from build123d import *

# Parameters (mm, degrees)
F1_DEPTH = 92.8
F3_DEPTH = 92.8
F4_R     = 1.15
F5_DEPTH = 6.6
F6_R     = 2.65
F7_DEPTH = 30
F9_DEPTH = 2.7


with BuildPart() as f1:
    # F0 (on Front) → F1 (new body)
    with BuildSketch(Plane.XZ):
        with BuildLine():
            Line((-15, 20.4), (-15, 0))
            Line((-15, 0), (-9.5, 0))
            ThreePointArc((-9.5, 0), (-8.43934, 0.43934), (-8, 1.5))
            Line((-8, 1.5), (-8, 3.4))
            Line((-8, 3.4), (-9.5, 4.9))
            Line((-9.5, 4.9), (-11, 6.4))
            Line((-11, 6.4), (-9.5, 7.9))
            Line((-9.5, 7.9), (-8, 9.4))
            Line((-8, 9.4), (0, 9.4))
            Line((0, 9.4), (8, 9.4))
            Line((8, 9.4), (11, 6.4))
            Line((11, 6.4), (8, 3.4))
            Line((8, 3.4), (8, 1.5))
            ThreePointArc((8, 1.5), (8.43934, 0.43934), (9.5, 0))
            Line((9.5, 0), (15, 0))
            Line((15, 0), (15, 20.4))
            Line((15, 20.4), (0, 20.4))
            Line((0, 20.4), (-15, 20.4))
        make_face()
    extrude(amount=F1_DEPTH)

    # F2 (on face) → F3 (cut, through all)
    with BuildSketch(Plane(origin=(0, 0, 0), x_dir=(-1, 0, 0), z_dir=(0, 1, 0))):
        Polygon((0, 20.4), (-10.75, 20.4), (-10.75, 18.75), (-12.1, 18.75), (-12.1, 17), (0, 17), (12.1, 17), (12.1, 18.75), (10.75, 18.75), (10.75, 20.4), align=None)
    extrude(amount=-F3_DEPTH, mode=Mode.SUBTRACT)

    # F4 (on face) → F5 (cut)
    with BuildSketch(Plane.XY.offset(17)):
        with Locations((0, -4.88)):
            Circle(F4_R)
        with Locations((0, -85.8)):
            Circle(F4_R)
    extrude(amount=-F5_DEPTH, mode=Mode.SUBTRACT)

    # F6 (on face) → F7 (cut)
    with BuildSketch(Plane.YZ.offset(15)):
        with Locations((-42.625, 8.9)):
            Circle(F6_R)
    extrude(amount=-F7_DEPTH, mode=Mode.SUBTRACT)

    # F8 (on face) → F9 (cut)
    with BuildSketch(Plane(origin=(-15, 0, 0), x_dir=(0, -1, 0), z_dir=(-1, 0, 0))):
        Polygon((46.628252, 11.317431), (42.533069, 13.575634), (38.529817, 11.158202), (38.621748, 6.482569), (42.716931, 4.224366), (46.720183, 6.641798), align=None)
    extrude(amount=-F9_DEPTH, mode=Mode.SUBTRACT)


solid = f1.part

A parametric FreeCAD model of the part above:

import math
import FreeCAD as App
import Part
import Sketcher

V = App.Vector

doc = App.newDocument("Part")
params = doc.addObject("Spreadsheet::Sheet", "Params")
for row, (alias, value) in enumerate([
    ("sketch1_radius", "1.500001 mm"),
    ("sketch1_width", "16 mm"),
    ("sketch1_width2", "30 mm"),
    ("sketch1_height", "20.4 mm"),
    ("sketch1_height2", "1.9 mm"),
    ("pad1_length", "92.8 mm"),
    ("sketch2_width", "24.2 mm"),
    ("sketch2_width2", "21.5 mm"),
    ("sketch2_height", "1.65 mm"),
    ("sketch2_height2", "1.75 mm"),
    ("sketch3_diameter", "2.3 mm"),
    ("pocket2_length", "6.6 mm"),
    ("sketch4_diameter", "5.3 mm"),
    ("pocket3_length", "30 mm"),
    ("pocket4_length", "2.7 mm"),
], start=1):
    params.set(f"A{row}", alias)
    params.set(f"B{row}", "=" + value)
    params.setAlias(f"B{row}", alias)

body = doc.addObject("PartDesign::Body", "Body")

# Sketch on XZ plane
sketch1 = doc.addObject("Sketcher::SketchObject", "Sketch")
body.addObject(sketch1)
sketch1.AttachmentSupport = (doc.XZ_Plane, [""])
sketch1.MapMode = "FlatFace"
sketch1.addGeometry([
    Part.LineSegment(V(-15, 20.4, 0), V(-15, 0, 0)),  # 0
    Part.LineSegment(V(-15, 0, 0), V(-9.5, 0, 0)),  # 1
    Part.ArcOfCircle(Part.Circle(V(-9.5, 1.5, 0), V(0, 0, 1), 1.5), math.radians(-90), math.radians(0)),  # 2
    Part.LineSegment(V(-8, 1.5, 0), V(-8, 3.4, 0)),  # 3
    Part.LineSegment(V(-8, 3.4, 0), V(-11, 6.4, 0)),  # 4
    Part.LineSegment(V(-11, 6.4, 0), V(-8, 9.4, 0)),  # 5
    Part.LineSegment(V(-8, 9.4, 0), V(8, 9.4, 0)),  # 6
    Part.LineSegment(V(8, 9.4, 0), V(11, 6.4, 0)),  # 7
    Part.LineSegment(V(11, 6.4, 0), V(8, 3.4, 0)),  # 8
    Part.LineSegment(V(8, 3.4, 0), V(8, 1.5, 0)),  # 9
    Part.ArcOfCircle(Part.Circle(V(9.5, 1.5, 0), V(0, 0, 1), 1.5), math.radians(-180), math.radians(-90)),  # 10
    Part.LineSegment(V(9.5, 0, 0), V(15, 0, 0)),  # 11
    Part.LineSegment(V(15, 0, 0), V(15, 20.4, 0)),  # 12
    Part.LineSegment(V(15, 20.4, 0), V(-15, 20.4, 0)),  # 13
], False)
sketch1.addConstraint([
    Sketcher.Constraint("Coincident", 0, 2, 1, 1),
    Sketcher.Constraint("Tangent", 1, 2, 2, 1),
    Sketcher.Constraint("Tangent", 2, 2, 3, 1),
    Sketcher.Constraint("Coincident", 3, 2, 4, 1),
    Sketcher.Constraint("Coincident", 4, 2, 5, 1),
    Sketcher.Constraint("Coincident", 5, 2, 6, 1),
    Sketcher.Constraint("Coincident", 6, 2, 7, 1),
    Sketcher.Constraint("Coincident", 7, 2, 8, 1),
    Sketcher.Constraint("Coincident", 8, 2, 9, 1),
    Sketcher.Constraint("Tangent", 9, 2, 10, 1),
    Sketcher.Constraint("Tangent", 10, 2, 11, 1),
    Sketcher.Constraint("Coincident", 11, 2, 12, 1),
    Sketcher.Constraint("Coincident", 12, 2, 13, 1),
    Sketcher.Constraint("Coincident", 13, 2, 0, 1),
    Sketcher.Constraint("Vertical", 0),
    Sketcher.Constraint("Horizontal", 1),
    Sketcher.Constraint("Vertical", 3),
    Sketcher.Constraint("Horizontal", 6),
    Sketcher.Constraint("Vertical", 9),
    Sketcher.Constraint("Horizontal", 11),
    Sketcher.Constraint("Vertical", 12),
    Sketcher.Constraint("Horizontal", 13),
    Sketcher.Constraint("Equal", 2, 10),
    Sketcher.Constraint("Symmetric", 1, 2, 10, 2, -1, 1),
    Sketcher.Constraint("Symmetric", 4, 2, 7, 2, -2),
    Sketcher.Constraint("Symmetric", 0, 2, 11, 2, -2),
    Sketcher.Constraint("Perpendicular", 4, 5),
    Sketcher.Constraint("Perpendicular", 5, 7),
    Sketcher.Constraint("Perpendicular", 7, 8),
    Sketcher.Constraint("Horizontal", 3, 2, 8, 2),
    Sketcher.Constraint("Vertical", 3, 2, 5, 2),
    Sketcher.Constraint("Radius", 2, 1.500001),
    Sketcher.Constraint("DistanceX", 6, 1, 6, 2, 16.0),
    Sketcher.Constraint("DistanceX", 13, 2, 13, 1, 30.0),
    Sketcher.Constraint("DistanceY", 0, 2, 0, 1, 20.4),
    Sketcher.Constraint("DistanceY", 3, 1, 3, 2, 1.9),
    Sketcher.Constraint("DistanceX", 4, 2, -1, 1, 11.0),
])
sketch1.setExpression("Constraints[31]", "Params.sketch1_radius")
sketch1.setExpression("Constraints[32]", "Params.sketch1_width")
sketch1.setExpression("Constraints[33]", "Params.sketch1_width2")
sketch1.setExpression("Constraints[34]", "Params.sketch1_height")
sketch1.setExpression("Constraints[35]", "Params.sketch1_height2")
pad1 = doc.addObject("PartDesign::Pad", "Pad")
body.addObject(pad1)
pad1.Profile = sketch1
pad1.setExpression("Length", "Params.pad1_length")

# Sketch on XZ plane
sketch2 = doc.addObject("Sketcher::SketchObject", "Sketch001")
body.addObject(sketch2)
sketch2.AttachmentSupport = (doc.XZ_Plane, [""])
sketch2.MapMode = "FlatFace"
sketch2.addGeometry([
    Part.LineSegment(V(10.8, 20.4, 0), V(10.8, 18.8, 0)),  # 0
    Part.LineSegment(V(10.8, 18.8, 0), V(12.1, 18.8, 0)),  # 1
    Part.LineSegment(V(12.1, 18.8, 0), V(12.1, 17, 0)),  # 2
    Part.LineSegment(V(12.1, 17, 0), V(-12.1, 17, 0)),  # 3
    Part.LineSegment(V(-12.1, 17, 0), V(-12.1, 18.8, 0)),  # 4
    Part.LineSegment(V(-12.1, 18.8, 0), V(-10.8, 18.8, 0)),  # 5
    Part.LineSegment(V(-10.8, 18.8, 0), V(-10.8, 20.4, 0)),  # 6
    Part.LineSegment(V(-10.8, 20.4, 0), V(10.8, 20.4, 0)),  # 7
], False)
sketch2.addConstraint([
    Sketcher.Constraint("Coincident", 0, 2, 1, 1),
    Sketcher.Constraint("Coincident", 1, 2, 2, 1),
    Sketcher.Constraint("Coincident", 2, 2, 3, 1),
    Sketcher.Constraint("Coincident", 3, 2, 4, 1),
    Sketcher.Constraint("Coincident", 4, 2, 5, 1),
    Sketcher.Constraint("Coincident", 5, 2, 6, 1),
    Sketcher.Constraint("Coincident", 6, 2, 7, 1),
    Sketcher.Constraint("Coincident", 7, 2, 0, 1),
    Sketcher.Constraint("Vertical", 0),
    Sketcher.Constraint("Horizontal", 1),
    Sketcher.Constraint("Vertical", 2),
    Sketcher.Constraint("Horizontal", 3),
    Sketcher.Constraint("Vertical", 4),
    Sketcher.Constraint("Horizontal", 5),
    Sketcher.Constraint("Vertical", 6),
    Sketcher.Constraint("Horizontal", 7),
    Sketcher.Constraint("Symmetric", 1, 2, 4, 2, -2),
    Sketcher.Constraint("Equal", 1, 5),
    Sketcher.Constraint("DistanceX", 3, 2, 3, 1, 24.2),
    Sketcher.Constraint("DistanceX", 7, 1, 7, 2, 21.5),
    Sketcher.Constraint("DistanceY", -1, 1, 2, 2, 17.0),
    Sketcher.Constraint("DistanceY", 0, 2, 0, 1, 1.65),
    Sketcher.Constraint("DistanceY", 2, 2, 2, 1, 1.75),
])
sketch2.setExpression("Constraints[18]", "Params.sketch2_width")
sketch2.setExpression("Constraints[19]", "Params.sketch2_width2")
sketch2.setExpression("Constraints[21]", "Params.sketch2_height")
sketch2.setExpression("Constraints[22]", "Params.sketch2_height2")
pocket1 = doc.addObject("PartDesign::Pocket", "Pocket")
body.addObject(pocket1)
pocket1.Profile = sketch2
pocket1.Type = "ThroughAll"
pocket1.Reversed = True

# Sketch on XY plane
sketch3 = doc.addObject("Sketcher::SketchObject", "Sketch002")
body.addObject(sketch3)
sketch3.AttachmentSupport = (doc.XY_Plane, [""])
sketch3.MapMode = "FlatFace"
sketch3.AttachmentOffset = App.Placement(V(0, 0, 17), App.Rotation())
sketch3.addGeometry([
    Part.Circle(V(0, -4.9, 0), V(0, 0, 1), 1.1),
    Part.Circle(V(0, -85.8, 0), V(0, 0, 1), 1.1),
], False)
sketch3.addConstraint([
    Sketcher.Constraint("Equal", 0, 1),
    Sketcher.Constraint("PointOnObject", 0, 3, -2),
    Sketcher.Constraint("PointOnObject", 1, 3, -2),
    Sketcher.Constraint("Diameter", 0, 2.3),
    Sketcher.Constraint("DistanceY", 1, 3, -1, 1, 85.8),
    Sketcher.Constraint("DistanceY", 0, 3, -1, 1, 4.88),
])
sketch3.setExpression("Constraints[3]", "Params.sketch3_diameter")
pocket2 = doc.addObject("PartDesign::Pocket", "Pocket001")
body.addObject(pocket2)
pocket2.Profile = sketch3
pocket2.setExpression("Length", "Params.pocket2_length")

# Sketch on YZ plane
sketch4 = doc.addObject("Sketcher::SketchObject", "Sketch003")
body.addObject(sketch4)
sketch4.AttachmentSupport = (doc.YZ_Plane, [""])
sketch4.MapMode = "FlatFace"
sketch4.AttachmentOffset = App.Placement(V(0, 0, 15), App.Rotation())
sketch4.addGeometry(Part.Circle(V(-42.6, 8.9, 0), V(0, 0, 1), 2.6), False)
sketch4.addConstraint([
    Sketcher.Constraint("Diameter", 0, 5.3),
    Sketcher.Constraint("DistanceY", -1, 1, 0, 3, 8.9),
    Sketcher.Constraint("DistanceX", 0, 3, -1, 1, 42.625),
])
sketch4.setExpression("Constraints[0]", "Params.sketch4_diameter")
pocket3 = doc.addObject("PartDesign::Pocket", "Pocket002")
body.addObject(pocket3)
pocket3.Profile = sketch4
pocket3.setExpression("Length", "Params.pocket3_length")

# Sketch on YZ plane
sketch5 = doc.addObject("Sketcher::SketchObject", "Sketch004")
body.addObject(sketch5)
sketch5.AttachmentSupport = (doc.YZ_Plane, [""])
sketch5.MapMode = "FlatFace"
sketch5.AttachmentOffset = App.Placement(V(0, 0, -15), App.Rotation())
sketch5.addGeometry([
    Part.LineSegment(V(-46.6, 11.3, 0), V(-42.5, 13.6, 0)),  # 0
    Part.LineSegment(V(-42.5, 13.6, 0), V(-38.5, 11.2, 0)),  # 1
    Part.LineSegment(V(-38.5, 11.2, 0), V(-38.6, 6.5, 0)),  # 2
    Part.LineSegment(V(-38.6, 6.5, 0), V(-42.7, 4.2, 0)),  # 3
    Part.LineSegment(V(-42.7, 4.2, 0), V(-46.7, 6.6, 0)),  # 4
    Part.LineSegment(V(-46.7, 6.6, 0), V(-46.6, 11.3, 0)),  # 5
], False)
sketch5.addConstraint([
    Sketcher.Constraint("Coincident", 0, 2, 1, 1),
    Sketcher.Constraint("Coincident", 1, 2, 2, 1),
    Sketcher.Constraint("Coincident", 2, 2, 3, 1),
    Sketcher.Constraint("Coincident", 3, 2, 4, 1),
    Sketcher.Constraint("Coincident", 4, 2, 5, 1),
    Sketcher.Constraint("Coincident", 5, 2, 0, 1),
    Sketcher.Constraint("Parallel", 0, 3),
    Sketcher.Constraint("Parallel", 1, 4),
    Sketcher.Constraint("Parallel", 2, 5),
    Sketcher.Constraint("Equal", 0, 1),
    Sketcher.Constraint("Equal", 1, 2),
    Sketcher.Constraint("Equal", 2, 3),
    Sketcher.Constraint("DistanceY", -1, 1, 1, 2, 11.158202),
    Sketcher.Constraint("DistanceX", 0, 2, -1, 1, 42.533069),
    Sketcher.Constraint("DistanceY", -1, 1, 2, 2, 6.482569),
    Sketcher.Constraint("DistanceX", 3, 2, -1, 1, 42.716931),
    Sketcher.Constraint("DistanceY", -1, 1, 5, 2, 11.317431),
    Sketcher.Constraint("DistanceX", 0, 2, 1, 2, 4.003252),
])
pocket4 = doc.addObject("PartDesign::Pocket", "Pocket003")
body.addObject(pocket4)
pocket4.Profile = sketch5
pocket4.setExpression("Length", "Params.pocket4_length")
pocket4.Reversed = True

doc.recompute()
